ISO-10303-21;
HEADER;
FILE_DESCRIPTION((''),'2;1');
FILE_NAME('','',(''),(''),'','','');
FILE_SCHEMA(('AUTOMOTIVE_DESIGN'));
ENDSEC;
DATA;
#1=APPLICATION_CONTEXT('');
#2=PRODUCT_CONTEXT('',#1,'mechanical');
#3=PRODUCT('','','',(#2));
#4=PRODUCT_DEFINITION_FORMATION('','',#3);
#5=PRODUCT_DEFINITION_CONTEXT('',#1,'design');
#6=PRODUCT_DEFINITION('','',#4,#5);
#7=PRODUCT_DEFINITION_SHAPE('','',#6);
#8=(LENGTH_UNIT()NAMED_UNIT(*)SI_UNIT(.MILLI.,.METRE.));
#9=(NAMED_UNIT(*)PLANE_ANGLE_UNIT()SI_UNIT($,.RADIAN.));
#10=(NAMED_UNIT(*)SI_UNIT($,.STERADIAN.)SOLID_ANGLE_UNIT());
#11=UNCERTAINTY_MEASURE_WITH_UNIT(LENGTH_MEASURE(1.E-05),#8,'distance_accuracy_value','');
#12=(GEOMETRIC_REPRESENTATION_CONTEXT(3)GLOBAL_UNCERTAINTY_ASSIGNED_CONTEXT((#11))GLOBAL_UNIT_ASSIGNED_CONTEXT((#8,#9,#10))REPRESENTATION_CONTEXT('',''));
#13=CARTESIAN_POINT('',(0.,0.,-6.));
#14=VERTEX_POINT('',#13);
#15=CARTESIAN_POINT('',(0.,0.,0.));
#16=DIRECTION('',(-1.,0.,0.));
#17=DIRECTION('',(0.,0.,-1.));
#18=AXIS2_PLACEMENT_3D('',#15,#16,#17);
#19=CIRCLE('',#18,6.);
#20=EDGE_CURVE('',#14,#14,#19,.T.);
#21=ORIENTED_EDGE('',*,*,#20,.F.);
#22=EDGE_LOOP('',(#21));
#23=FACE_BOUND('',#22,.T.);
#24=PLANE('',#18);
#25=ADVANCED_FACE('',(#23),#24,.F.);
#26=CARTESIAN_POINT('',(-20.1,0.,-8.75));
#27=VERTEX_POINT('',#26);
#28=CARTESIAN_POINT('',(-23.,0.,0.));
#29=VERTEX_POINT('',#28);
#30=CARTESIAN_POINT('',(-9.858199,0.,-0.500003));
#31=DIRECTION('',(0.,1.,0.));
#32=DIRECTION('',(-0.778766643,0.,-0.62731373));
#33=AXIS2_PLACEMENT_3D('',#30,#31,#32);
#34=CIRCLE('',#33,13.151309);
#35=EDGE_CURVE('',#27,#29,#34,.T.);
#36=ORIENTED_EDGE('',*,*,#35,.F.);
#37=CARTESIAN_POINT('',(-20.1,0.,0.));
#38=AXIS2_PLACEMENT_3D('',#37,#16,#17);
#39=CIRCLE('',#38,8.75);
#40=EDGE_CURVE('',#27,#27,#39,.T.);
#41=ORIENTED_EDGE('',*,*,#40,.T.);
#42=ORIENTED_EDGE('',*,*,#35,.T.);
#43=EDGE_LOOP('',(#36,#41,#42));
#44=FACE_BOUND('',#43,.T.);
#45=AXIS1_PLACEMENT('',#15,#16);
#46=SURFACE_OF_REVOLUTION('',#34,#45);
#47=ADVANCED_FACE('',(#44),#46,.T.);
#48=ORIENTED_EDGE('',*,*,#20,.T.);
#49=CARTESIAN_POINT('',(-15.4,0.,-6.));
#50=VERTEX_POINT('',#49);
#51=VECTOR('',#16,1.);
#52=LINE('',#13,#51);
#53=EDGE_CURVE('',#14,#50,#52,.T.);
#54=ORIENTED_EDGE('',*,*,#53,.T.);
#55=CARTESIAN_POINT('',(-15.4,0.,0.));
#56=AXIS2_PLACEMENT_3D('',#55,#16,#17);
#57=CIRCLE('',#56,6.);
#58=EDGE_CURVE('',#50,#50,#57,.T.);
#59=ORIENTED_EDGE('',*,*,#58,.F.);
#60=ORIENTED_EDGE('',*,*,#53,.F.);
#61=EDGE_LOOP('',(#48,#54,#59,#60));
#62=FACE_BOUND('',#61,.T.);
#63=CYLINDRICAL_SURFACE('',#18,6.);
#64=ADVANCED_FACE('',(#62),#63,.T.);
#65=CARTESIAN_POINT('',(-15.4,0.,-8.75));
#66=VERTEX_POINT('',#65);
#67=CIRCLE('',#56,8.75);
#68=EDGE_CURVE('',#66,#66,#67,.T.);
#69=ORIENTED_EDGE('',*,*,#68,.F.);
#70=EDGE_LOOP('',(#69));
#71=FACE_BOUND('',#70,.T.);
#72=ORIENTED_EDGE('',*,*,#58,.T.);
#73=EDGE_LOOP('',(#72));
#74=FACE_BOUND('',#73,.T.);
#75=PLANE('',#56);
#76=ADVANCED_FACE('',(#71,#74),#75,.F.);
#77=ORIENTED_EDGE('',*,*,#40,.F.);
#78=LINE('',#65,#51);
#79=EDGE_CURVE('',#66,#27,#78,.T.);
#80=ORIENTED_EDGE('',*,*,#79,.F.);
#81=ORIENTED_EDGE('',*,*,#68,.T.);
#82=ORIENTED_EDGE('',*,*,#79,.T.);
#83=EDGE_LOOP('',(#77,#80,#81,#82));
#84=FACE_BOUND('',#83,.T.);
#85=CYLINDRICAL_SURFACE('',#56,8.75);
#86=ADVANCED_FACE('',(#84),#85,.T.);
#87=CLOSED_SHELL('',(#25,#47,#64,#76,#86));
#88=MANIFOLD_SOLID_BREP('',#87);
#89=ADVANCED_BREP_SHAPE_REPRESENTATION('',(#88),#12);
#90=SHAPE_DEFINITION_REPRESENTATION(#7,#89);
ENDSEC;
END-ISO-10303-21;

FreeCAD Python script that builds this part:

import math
import FreeCAD as App
import Part
import Sketcher
from FreeCAD import Vector
Q = App.Units.Quantity

doc = App.newDocument("Part")
params = doc.addObject("Spreadsheet::Sheet", "Params")
for row, (alias, value) in enumerate([
    ("sketch1_height", "6 mm"),
    ("sketch1_width", "15.4 mm"),
    ("sketch1_width2", "4.7 mm"),
    ("sketch1_height2", "2.75 mm"),
    ("sketch1_width3", "23 mm"),
    ("revolution_angle", "360 deg"),
], start=1):
    params.set(f"A{row}", alias)
    params.set(f"B{row}", "=" + value)
    params.setAlias(f"B{row}", alias)

body = doc.addObject("PartDesign::Body", "Body")

sketch1 = body.newObject("Sketcher::SketchObject", "Sketch")
sketch1.AttachmentSupport = (doc.getObject("XZ_Plane"), [""])
sketch1.MapMode = "FlatFace"
sketch1.addGeometry([
    Part.LineSegment(Vector(-23, 0, 0), Vector(0, 0, 0)),
    Part.LineSegment(Vector(0, 0, 0), Vector(0, -6, 0)),
    Part.LineSegment(Vector(0, -6, 0), Vector(-15.4, -6, 0)),
    Part.LineSegment(Vector(-15.4, -6, 0), Vector(-15.4, -8.8, 0)),
    Part.LineSegment(Vector(-15.4, -8.8, 0), Vector(-20.1, -8.8, 0)),
    Part.ArcOfCircle(Part.Circle(Vector(-9.9, -0.5, 0), Vector(0, 0, 1), 13.2), math.radians(178), math.radians(219)),
], False)
sketch1.addConstraint([
    Sketcher.Constraint("Coincident", 0, 2, 1, 1),
    Sketcher.Constraint("Coincident", 1, 2, 2, 1),
    Sketcher.Constraint("Coincident", 2, 2, 3, 1),
    Sketcher.Constraint("Coincident", 3, 2, 4, 1),
    Sketcher.Constraint("Coincident", 4, 2, 5, 2),
    Sketcher.Constraint("Coincident", 5, 1, 0, 1),
    Sketcher.Constraint("Horizontal", 0),
    Sketcher.Constraint("Vertical", 1),
    Sketcher.Constraint("Horizontal", 2),
    Sketcher.Constraint("Vertical", 3),
    Sketcher.Constraint("Horizontal", 4),
    Sketcher.Constraint("Coincident", 0, 2, -1, 1),
    Sketcher.Constraint("DistanceY", 1, 2, 1, 1, Q("6 mm")),
    Sketcher.Constraint("DistanceX", 2, 2, 2, 1, Q("15.4 mm")),
    Sketcher.Constraint("DistanceX", 4, 2, 4, 1, Q("4.7 mm")),
    Sketcher.Constraint("DistanceY", 3, 2, 3, 1, Q("2.75 mm")),
    Sketcher.Constraint("DistanceX", 0, 1, 0, 2, Q("23 mm")),
    Sketcher.Constraint("DistanceY", 5, 3, -1, 1, Q("0.5 mm")),
])
sketch1.setExpression("Constraints[12]", "Params.sketch1_height")
sketch1.setExpression("Constraints[13]", "Params.sketch1_width")
sketch1.setExpression("Constraints[14]", "Params.sketch1_width2")
sketch1.setExpression("Constraints[15]", "Params.sketch1_height2")
sketch1.setExpression("Constraints[16]", "Params.sketch1_width3")
revolution = body.newObject("PartDesign::Revolution", "Revolution")
revolution.Profile = sketch1
revolution.ReferenceAxis = (sketch1, ["H_Axis"])
revolution.setExpression("Angle", "Params.revolution_angle")

doc.recompute()
